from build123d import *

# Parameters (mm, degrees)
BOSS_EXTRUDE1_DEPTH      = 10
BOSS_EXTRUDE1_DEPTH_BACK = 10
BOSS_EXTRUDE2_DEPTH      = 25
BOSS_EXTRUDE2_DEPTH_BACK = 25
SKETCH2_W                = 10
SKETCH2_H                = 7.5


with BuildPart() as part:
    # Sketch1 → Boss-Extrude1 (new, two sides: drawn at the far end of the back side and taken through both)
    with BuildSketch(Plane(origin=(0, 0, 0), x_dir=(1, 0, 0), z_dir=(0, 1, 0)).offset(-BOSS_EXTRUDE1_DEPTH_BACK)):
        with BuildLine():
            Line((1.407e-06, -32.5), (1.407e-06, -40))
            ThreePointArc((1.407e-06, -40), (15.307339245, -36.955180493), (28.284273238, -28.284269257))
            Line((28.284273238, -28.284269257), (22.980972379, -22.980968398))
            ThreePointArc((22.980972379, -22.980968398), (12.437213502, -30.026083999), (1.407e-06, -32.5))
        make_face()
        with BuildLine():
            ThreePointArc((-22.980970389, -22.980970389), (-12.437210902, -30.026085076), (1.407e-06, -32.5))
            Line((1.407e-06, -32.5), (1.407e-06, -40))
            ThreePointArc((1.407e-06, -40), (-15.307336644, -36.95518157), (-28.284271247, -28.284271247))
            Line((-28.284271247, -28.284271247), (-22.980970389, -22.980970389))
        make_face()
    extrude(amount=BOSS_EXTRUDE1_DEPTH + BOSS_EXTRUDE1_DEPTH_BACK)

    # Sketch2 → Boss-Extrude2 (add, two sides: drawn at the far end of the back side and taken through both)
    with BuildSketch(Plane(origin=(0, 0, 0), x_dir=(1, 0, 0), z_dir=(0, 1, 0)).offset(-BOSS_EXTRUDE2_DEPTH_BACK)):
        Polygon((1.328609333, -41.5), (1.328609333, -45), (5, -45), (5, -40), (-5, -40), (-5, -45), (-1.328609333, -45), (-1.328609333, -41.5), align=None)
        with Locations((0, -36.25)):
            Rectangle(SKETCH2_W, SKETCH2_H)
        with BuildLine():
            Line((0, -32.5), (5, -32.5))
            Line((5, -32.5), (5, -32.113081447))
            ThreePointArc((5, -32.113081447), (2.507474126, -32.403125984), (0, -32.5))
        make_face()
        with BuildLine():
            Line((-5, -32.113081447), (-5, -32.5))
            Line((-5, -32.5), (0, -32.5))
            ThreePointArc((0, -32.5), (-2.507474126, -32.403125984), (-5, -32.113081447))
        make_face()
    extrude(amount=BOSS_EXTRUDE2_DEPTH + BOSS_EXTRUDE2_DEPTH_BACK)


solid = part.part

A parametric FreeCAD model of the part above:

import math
import FreeCAD as App
import Part
import Sketcher
from FreeCAD import Vector

doc = App.newDocument("Part")
body = doc.addObject("PartDesign::Body", "Body")

# Sketch on XZ plane
sketch1 = body.newObject("Sketcher::SketchObject", "Sketch")
sketch1.AttachmentSupport = (doc.getObject("XZ_Plane"), [""])
sketch1.MapMode = "FlatFace"
sketch1.addGeometry([
    Part.ArcOfCircle(Part.Circle(Vector(0, 0, 0), Vector(0, 0, 1), 40), math.radians(44.999996), math.radians(89.999998)),  # 0
    Part.LineSegment(Vector(28.284273, 28.284269, 0), Vector(22.980972, 22.980968, 0)),  # 1
    Part.ArcOfCircle(Part.Circle(Vector(0, 0, 0), Vector(0, 0, 1), 32.5), math.radians(44.999995), math.radians(89.999998)),  # 2
    Part.ArcOfCircle(Part.Circle(Vector(0, 0, 0), Vector(0, 0, 1), 32.5), math.radians(89.999998), math.radians(135)),  # 3
    Part.LineSegment(Vector(-22.98097, 22.98097, 0), Vector(-28.284271, 28.284271, 0)),  # 4
    Part.ArcOfCircle(Part.Circle(Vector(0, 0, 0), Vector(0, 0, 1), 40), math.radians(89.999998), math.radians(135)),  # 5
], False)
sketch1.addConstraint([
    Sketcher.Constraint("Coincident", 0, 1, 1, 1),
    Sketcher.Constraint("Coincident", 1, 2, 2, 1),
    Sketcher.Constraint("Tangent", 2, 2, 3, 1),
    Sketcher.Constraint("Coincident", 3, 2, 4, 1),
    Sketcher.Constraint("Coincident", 4, 2, 5, 2),
    Sketcher.Constraint("Tangent", 5, 1, 0, 2),
    Sketcher.Constraint("Coincident", 0, 3, -1, 1),
    Sketcher.Constraint("Coincident", 2, 3, -1, 1),
    Sketcher.Constraint("Equal", 2, 3),
    Sketcher.Constraint("Equal", 0, 5),
    Sketcher.Constraint("PointOnObject", 2, 2, -2),
    Sketcher.Constraint("PointOnObject", 5, 1, -2),
    Sketcher.Constraint("Perpendicular", 1, 4),
    Sketcher.Constraint("Horizontal", 1, 2, 3, 2),
    Sketcher.Constraint("Horizontal", 0, 1, 4, 2),
    Sketcher.Constraint("Radius", 0, 40.0),
    Sketcher.Constraint("Radius", 2, 32.5),
    Sketcher.Constraint("DistanceY", -1, 1, 0, 1, 28.284269),
])
pad1 = body.newObject("PartDesign::Pad", "Pad")
pad1.Profile = sketch1
pad1.Type = "TwoLengths"
pad1.Length = 10
pad1.Length2 = 10
pad1.Reversed = True

# Sketch on XZ plane
sketch2 = body.newObject("Sketcher::SketchObject", "Sketch001")
sketch2.AttachmentSupport = (doc.getObject("XZ_Plane"), [""])
sketch2.MapMode = "FlatFace"
sketch2.addGeometry([
    Part.LineSegment(Vector(1.328609, 41.5, 0), Vector(1.328609, 45, 0)),  # 0
    Part.LineSegment(Vector(1.328609, 45, 0), Vector(5, 45, 0)),  # 1
    Part.LineSegment(Vector(5, 45, 0), Vector(5, 32.113081, 0)),  # 2
    Part.ArcOfCircle(Part.Circle(Vector(0, 0, 0), Vector(0, 0, 1), 32.5), math.radians(81.150117), math.radians(90)),  # 3
    Part.ArcOfCircle(Part.Circle(Vector(0, 0, 0), Vector(0, 0, 1), 32.5), math.radians(90), math.radians(98.849883)),  # 4
    Part.LineSegment(Vector(-5, 32.113081, 0), Vector(-5, 45, 0)),  # 5
    Part.LineSegment(Vector(-5, 45, 0), Vector(-1.328609, 45, 0)),  # 6
    Part.LineSegment(Vector(-1.328609, 45, 0), Vector(-1.328609, 41.5, 0)),  # 7
    Part.LineSegment(Vector(-1.328609, 41.5, 0), Vector(1.328609, 41.5, 0)),  # 8
], False)
sketch2.addConstraint([
    Sketcher.Constraint("Coincident", 0, 2, 1, 1),
    Sketcher.Constraint("Coincident", 1, 2, 2, 1),
    Sketcher.Constraint("Coincident", 2, 2, 3, 1),
    Sketcher.Constraint("Tangent", 3, 2, 4, 1),
    Sketcher.Constraint("Coincident", 4, 2, 5, 1),
    Sketcher.Constraint("Coincident", 5, 2, 6, 1),
    Sketcher.Constraint("Coincident", 6, 2, 7, 1),
    Sketcher.Constraint("Coincident", 7, 2, 8, 1),
    Sketcher.Constraint("Coincident", 8, 2, 0, 1),
    Sketcher.Constraint("Vertical", 0),
    Sketcher.Constraint("Horizontal", 1),
    Sketcher.Constraint("Vertical", 2),
    Sketcher.Constraint("Vertical", 5),
    Sketcher.Constraint("Horizontal", 6),
    Sketcher.Constraint("Vertical", 7),
    Sketcher.Constraint("Horizontal", 8),
    Sketcher.Constraint("Coincident", 3, 3, -1, 1),
    Sketcher.Constraint("Equal", 3, 4),
    Sketcher.Constraint("Symmetric", 1, 2, 5, 2, -2),
    Sketcher.Constraint("PointOnObject", 3, 2, -2),
    Sketcher.Constraint("Equal", 1, 6),
    Sketcher.Constraint("Radius", 3, 32.5),
    Sketcher.Constraint("DistanceY", 0, 1, 0, 2, 3.5),
    Sketcher.Constraint("DistanceY", -1, 1, 0, 2, 45.0),
    Sketcher.Constraint("DistanceX", -1, 1, 1, 2, 5.0),
    Sketcher.Constraint("DistanceX", 1, 1, 1, 2, 3.671391),
])
pad2 = body.newObject("PartDesign::Pad", "Pad001")
pad2.Profile = sketch2
pad2.Type = "TwoLengths"
pad2.Length = 25
pad2.Length2 = 25
pad2.Reversed = True

doc.recompute()
